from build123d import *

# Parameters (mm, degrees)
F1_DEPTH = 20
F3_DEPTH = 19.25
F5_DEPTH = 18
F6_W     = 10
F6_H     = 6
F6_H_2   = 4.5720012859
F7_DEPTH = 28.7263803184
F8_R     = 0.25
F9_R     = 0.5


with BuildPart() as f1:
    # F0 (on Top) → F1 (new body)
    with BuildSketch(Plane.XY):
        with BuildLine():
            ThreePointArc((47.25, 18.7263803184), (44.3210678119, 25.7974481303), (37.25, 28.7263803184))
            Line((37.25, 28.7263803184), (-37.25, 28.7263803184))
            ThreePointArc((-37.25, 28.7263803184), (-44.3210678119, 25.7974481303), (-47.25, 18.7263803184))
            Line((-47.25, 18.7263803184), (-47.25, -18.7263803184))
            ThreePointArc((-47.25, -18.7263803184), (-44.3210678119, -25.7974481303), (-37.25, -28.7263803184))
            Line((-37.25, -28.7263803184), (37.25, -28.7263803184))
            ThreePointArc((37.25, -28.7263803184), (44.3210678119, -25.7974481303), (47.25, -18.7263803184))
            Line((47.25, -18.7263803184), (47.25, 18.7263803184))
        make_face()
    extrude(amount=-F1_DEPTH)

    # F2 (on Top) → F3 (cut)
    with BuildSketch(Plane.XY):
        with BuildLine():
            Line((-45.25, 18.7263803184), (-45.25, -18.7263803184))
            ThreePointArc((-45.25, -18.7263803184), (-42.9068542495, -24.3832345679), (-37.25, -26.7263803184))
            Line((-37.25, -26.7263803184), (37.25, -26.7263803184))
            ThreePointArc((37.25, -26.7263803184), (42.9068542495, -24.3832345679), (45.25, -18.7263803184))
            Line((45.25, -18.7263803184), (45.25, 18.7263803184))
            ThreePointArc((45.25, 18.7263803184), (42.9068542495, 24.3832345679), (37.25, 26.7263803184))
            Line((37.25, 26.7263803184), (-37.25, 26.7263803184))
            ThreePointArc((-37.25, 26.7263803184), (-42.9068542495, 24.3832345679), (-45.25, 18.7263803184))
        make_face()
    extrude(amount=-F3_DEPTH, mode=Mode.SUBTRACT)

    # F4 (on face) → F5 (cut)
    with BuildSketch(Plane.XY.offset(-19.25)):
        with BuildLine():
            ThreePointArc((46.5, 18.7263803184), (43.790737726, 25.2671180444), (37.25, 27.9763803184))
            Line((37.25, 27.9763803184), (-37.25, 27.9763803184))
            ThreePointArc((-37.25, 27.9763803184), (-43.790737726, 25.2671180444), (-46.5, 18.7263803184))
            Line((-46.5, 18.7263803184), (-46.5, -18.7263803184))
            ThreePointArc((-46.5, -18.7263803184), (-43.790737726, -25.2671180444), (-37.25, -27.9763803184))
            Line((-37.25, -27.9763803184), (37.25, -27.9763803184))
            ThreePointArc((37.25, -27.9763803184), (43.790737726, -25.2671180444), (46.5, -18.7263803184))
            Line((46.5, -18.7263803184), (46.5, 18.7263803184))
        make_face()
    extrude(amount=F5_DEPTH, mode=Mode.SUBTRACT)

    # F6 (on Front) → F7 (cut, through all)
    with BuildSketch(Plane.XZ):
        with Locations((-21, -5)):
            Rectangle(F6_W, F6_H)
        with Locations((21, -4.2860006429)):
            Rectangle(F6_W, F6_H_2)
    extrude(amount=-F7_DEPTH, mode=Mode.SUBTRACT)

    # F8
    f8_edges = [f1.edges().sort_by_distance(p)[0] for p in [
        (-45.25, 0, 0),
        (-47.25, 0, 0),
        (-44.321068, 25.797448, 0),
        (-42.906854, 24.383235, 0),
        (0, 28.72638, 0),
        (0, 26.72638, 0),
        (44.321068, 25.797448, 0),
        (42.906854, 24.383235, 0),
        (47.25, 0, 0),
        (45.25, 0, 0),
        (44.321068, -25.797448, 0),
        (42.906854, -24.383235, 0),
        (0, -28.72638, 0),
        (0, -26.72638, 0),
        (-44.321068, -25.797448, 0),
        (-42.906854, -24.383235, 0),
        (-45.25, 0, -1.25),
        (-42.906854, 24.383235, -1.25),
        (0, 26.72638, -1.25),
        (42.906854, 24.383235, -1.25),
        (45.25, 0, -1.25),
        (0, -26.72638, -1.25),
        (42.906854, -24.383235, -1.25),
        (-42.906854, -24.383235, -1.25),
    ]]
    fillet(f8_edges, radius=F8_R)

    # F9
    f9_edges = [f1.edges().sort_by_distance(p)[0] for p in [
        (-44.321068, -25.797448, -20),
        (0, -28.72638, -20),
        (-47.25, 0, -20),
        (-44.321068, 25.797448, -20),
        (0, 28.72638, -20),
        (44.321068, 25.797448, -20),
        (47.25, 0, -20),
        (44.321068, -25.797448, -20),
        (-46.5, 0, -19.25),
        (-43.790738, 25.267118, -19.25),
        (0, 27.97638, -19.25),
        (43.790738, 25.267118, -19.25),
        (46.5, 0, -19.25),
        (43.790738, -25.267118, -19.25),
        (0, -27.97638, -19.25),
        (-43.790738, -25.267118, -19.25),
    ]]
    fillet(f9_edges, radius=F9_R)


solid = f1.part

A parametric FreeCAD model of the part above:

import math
import FreeCAD as App
import Part
import Sketcher


def edges_at(feature, points):
    """Names of the edges that pass closest to the given points."""
    edges = feature.Shape.Edges
    near = lambda p: min(range(len(edges)), key=lambda i: edges[i].distToShape(Part.Vertex(*p))[0])
    return sorted({f"Edge{near(p) + 1}" for p in points})

doc = App.newDocument("Part")
body = doc.addObject("PartDesign::Body", "Body")

# Sketch on XY plane
sketch1 = body.newObject("Sketcher::SketchObject", "Sketch")
sketch1.AttachmentSupport = (doc.getObject("XY_Plane"), [""])
sketch1.MapMode = "FlatFace"
sketch1.addGeometry([
    Part.ArcOfCircle(Part.Circle(App.Vector(37, 19, 0), App.Vector(0, 0, 1), 10), math.radians(0), math.radians(90)),  # 0
    Part.LineSegment(App.Vector(37, 29, 0), App.Vector(-37, 29, 0)),  # 1
    Part.ArcOfCircle(Part.Circle(App.Vector(-37, 19, 0), App.Vector(0, 0, 1), 10), math.radians(90), math.radians(180)),  # 2
    Part.LineSegment(App.Vector(-47, 19, 0), App.Vector(-47, -19, 0)),  # 3
    Part.ArcOfCircle(Part.Circle(App.Vector(-37, -19, 0), App.Vector(0, 0, 1), 10), math.radians(180), math.radians(270)),  # 4
    Part.LineSegment(App.Vector(-37, -29, 0), App.Vector(37, -29, 0)),  # 5
    Part.ArcOfCircle(Part.Circle(App.Vector(37, -19, 0), App.Vector(0, 0, 1), 10), math.radians(-90), math.radians(0)),  # 6
    Part.LineSegment(App.Vector(47, -19, 0), App.Vector(47, 19, 0)),  # 7
], False)
sketch1.addConstraint([
    Sketcher.Constraint("Tangent", 0, 2, 1, 1),
    Sketcher.Constraint("Tangent", 1, 2, 2, 1),
    Sketcher.Constraint("Tangent", 2, 2, 3, 1),
    Sketcher.Constraint("Tangent", 3, 2, 4, 1),
    Sketcher.Constraint("Tangent", 4, 2, 5, 1),
    Sketcher.Constraint("Tangent", 5, 2, 6, 1),
    Sketcher.Constraint("Tangent", 6, 2, 7, 1),
    Sketcher.Constraint("Tangent", 7, 2, 0, 1),
    Sketcher.Constraint("Horizontal", 1),
    Sketcher.Constraint("Vertical", 3),
    Sketcher.Constraint("Horizontal", 5),
    Sketcher.Constraint("Vertical", 7),
    Sketcher.Constraint("Equal", 0, 2),
    Sketcher.Constraint("Equal", 2, 4),
    Sketcher.Constraint("Equal", 4, 6),
    Sketcher.Constraint("Symmetric", 0, 3, 4, 3, -1, 1),
    Sketcher.Constraint("Radius", 0, 10.0),
    Sketcher.Constraint("DistanceX", 1, 2, 1, 1, 74.5),
    Sketcher.Constraint("DistanceY", 3, 2, 3, 1, 37.452761),
])
pad1 = body.newObject("PartDesign::Pad", "Pad")
pad1.Profile = sketch1
pad1.Length = 20
pad1.Reversed = True

# Sketch on XY plane
sketch2 = body.newObject("Sketcher::SketchObject", "Sketch001")
sketch2.AttachmentSupport = (doc.getObject("XY_Plane"), [""])
sketch2.MapMode = "FlatFace"
sketch2.addGeometry([
    Part.LineSegment(App.Vector(-45, 19, 0), App.Vector(-45, -19, 0)),  # 0
    Part.ArcOfCircle(Part.Circle(App.Vector(-37, -19, 0), App.Vector(0, 0, 1), 8), math.radians(180), math.radians(270)),  # 1
    Part.LineSegment(App.Vector(-37, -27, 0), App.Vector(37, -27, 0)),  # 2
    Part.ArcOfCircle(Part.Circle(App.Vector(37, -19, 0), App.Vector(0, 0, 1), 8), math.radians(-90), math.radians(0)),  # 3
    Part.LineSegment(App.Vector(45, -19, 0), App.Vector(45, 19, 0)),  # 4
    Part.ArcOfCircle(Part.Circle(App.Vector(37, 19, 0), App.Vector(0, 0, 1), 8), math.radians(0), math.radians(90)),  # 5
    Part.LineSegment(App.Vector(37, 27, 0), App.Vector(-37, 27, 0)),  # 6
    Part.ArcOfCircle(Part.Circle(App.Vector(-37, 19, 0), App.Vector(0, 0, 1), 8), math.radians(90), math.radians(180)),  # 7
], False)
sketch2.addConstraint([
    Sketcher.Constraint("Tangent", 0, 2, 1, 1),
    Sketcher.Constraint("Tangent", 1, 2, 2, 1),
    Sketcher.Constraint("Tangent", 2, 2, 3, 1),
    Sketcher.Constraint("Tangent", 3, 2, 4, 1),
    Sketcher.Constraint("Tangent", 4, 2, 5, 1),
    Sketcher.Constraint("Tangent", 5, 2, 6, 1),
    Sketcher.Constraint("Tangent", 6, 2, 7, 1),
    Sketcher.Constraint("Tangent", 7, 2, 0, 1),
    Sketcher.Constraint("Vertical", 0),
    Sketcher.Constraint("Horizontal", 2),
    Sketcher.Constraint("Vertical", 4),
    Sketcher.Constraint("Horizontal", 6),
    Sketcher.Constraint("Equal", 1, 3),
    Sketcher.Constraint("Equal", 3, 5),
    Sketcher.Constraint("Equal", 5, 7),
    Sketcher.Constraint("Symmetric", 1, 3, 5, 3, -1, 1),
    Sketcher.Constraint("Radius", 1, 8.0),
    Sketcher.Constraint("DistanceX", 2, 1, 2, 2, 74.5),
    Sketcher.Constraint("DistanceY", 0, 2, 0, 1, 37.452761),
])
pocket1 = body.newObject("PartDesign::Pocket", "Pocket")
pocket1.Profile = sketch2
pocket1.Length = 19.25

# Sketch on XY plane
sketch3 = body.newObject("Sketcher::SketchObject", "Sketch002")
sketch3.AttachmentSupport = (doc.getObject("XY_Plane"), [""])
sketch3.MapMode = "FlatFace"
sketch3.AttachmentOffset = App.Placement(App.Vector(0, 0, -19.25), App.Rotation())
sketch3.addGeometry([
    Part.ArcOfCircle(Part.Circle(App.Vector(37, 19, 0), App.Vector(0, 0, 1), 9), math.radians(0), math.radians(90)),  # 0
    Part.LineSegment(App.Vector(37, 28, 0), App.Vector(-37, 28, 0)),  # 1
    Part.ArcOfCircle(Part.Circle(App.Vector(-37, 19, 0), App.Vector(0, 0, 1), 9), math.radians(90), math.radians(180)),  # 2
    Part.LineSegment(App.Vector(-46, 19, 0), App.Vector(-46, -19, 0)),  # 3
    Part.ArcOfCircle(Part.Circle(App.Vector(-37, -19, 0), App.Vector(0, 0, 1), 9), math.radians(180), math.radians(270)),  # 4
    Part.LineSegment(App.Vector(-37, -28, 0), App.Vector(37, -28, 0)),  # 5
    Part.ArcOfCircle(Part.Circle(App.Vector(37, -19, 0), App.Vector(0, 0, 1), 9), math.radians(-90), math.radians(0)),  # 6
    Part.LineSegment(App.Vector(46, -19, 0), App.Vector(46, 19, 0)),  # 7
], False)
sketch3.addConstraint([
    Sketcher.Constraint("Tangent", 0, 2, 1, 1),
    Sketcher.Constraint("Tangent", 1, 2, 2, 1),
    Sketcher.Constraint("Tangent", 2, 2, 3, 1),
    Sketcher.Constraint("Tangent", 3, 2, 4, 1),
    Sketcher.Constraint("Tangent", 4, 2, 5, 1),
    Sketcher.Constraint("Tangent", 5, 2, 6, 1),
    Sketcher.Constraint("Tangent", 6, 2, 7, 1),
    Sketcher.Constraint("Tangent", 7, 2, 0, 1),
    Sketcher.Constraint("Horizontal", 1),
    Sketcher.Constraint("Vertical", 3),
    Sketcher.Constraint("Horizontal", 5),
    Sketcher.Constraint("Vertical", 7),
    Sketcher.Constraint("Equal", 0, 2),
    Sketcher.Constraint("Equal", 2, 4),
    Sketcher.Constraint("Equal", 4, 6),
    Sketcher.Constraint("Symmetric", 0, 3, 4, 3, -1, 1),
    Sketcher.Constraint("Radius", 0, 9.25),
    Sketcher.Constraint("DistanceX", 1, 2, 1, 1, 74.5),
    Sketcher.Constraint("DistanceY", 3, 2, 3, 1, 37.452761),
])
pocket2 = body.newObject("PartDesign::Pocket", "Pocket001")
pocket2.Profile = sketch3
pocket2.Length = 18
pocket2.Reversed = True

# Sketch on XZ plane
sketch4 = body.newObject("Sketcher::SketchObject", "Sketch003")
sketch4.AttachmentSupport = (doc.getObject("XZ_Plane"), [""])
sketch4.MapMode = "FlatFace"
sketch4.addGeometry([
    Part.LineSegment(App.Vector(-26, -2, 0), App.Vector(-26, -8, 0)),  # 0
    Part.LineSegment(App.Vector(-26, -8, 0), App.Vector(-16, -8, 0)),  # 1
    Part.LineSegment(App.Vector(-16, -8, 0), App.Vector(-16, -2, 0)),  # 2
    Part.LineSegment(App.Vector(-16, -2, 0), App.Vector(-26, -2, 0)),  # 3
    Part.LineSegment(App.Vector(16, -2, 0), App.Vector(16, -6.6, 0)),  # 4
    Part.LineSegment(App.Vector(16, -6.6, 0), App.Vector(26, -6.6, 0)),  # 5
    Part.LineSegment(App.Vector(26, -6.6, 0), App.Vector(26, -2, 0)),  # 6
    Part.LineSegment(App.Vector(26, -2, 0), App.Vector(16, -2, 0)),  # 7
], False)
sketch4.addConstraint([
    Sketcher.Constraint("Coincident", 0, 2, 1, 1),
    Sketcher.Constraint("Coincident", 1, 2, 2, 1),
    Sketcher.Constraint("Coincident", 2, 2, 3, 1),
    Sketcher.Constraint("Coincident", 3, 2, 0, 1),
    Sketcher.Constraint("Coincident", 4, 2, 5, 1),
    Sketcher.Constraint("Coincident", 5, 2, 6, 1),
    Sketcher.Constraint("Coincident", 6, 2, 7, 1),
    Sketcher.Constraint("Coincident", 7, 2, 4, 1),
    Sketcher.Constraint("Vertical", 0),
    Sketcher.Constraint("Horizontal", 1),
    Sketcher.Constraint("Vertical", 2),
    Sketcher.Constraint("Horizontal", 3),
    Sketcher.Constraint("Vertical", 4),
    Sketcher.Constraint("Horizontal", 5),
    Sketcher.Constraint("Vertical", 6),
    Sketcher.Constraint("Horizontal", 7),
    Sketcher.Constraint("Symmetric", 3, 2, 6, 2, -2),
    Sketcher.Constraint("Equal", 3, 5),
    Sketcher.Constraint("DistanceX", 1, 1, 1, 2, 10.0),
    Sketcher.Constraint("DistanceY", 0, 2, 0, 1, 6.0),
    Sketcher.Constraint("DistanceX", 0, 2, -1, 1, 26.0),
    Sketcher.Constraint("DistanceY", 0, 2, -1, 1, 8.0),
    Sketcher.Constraint("DistanceY", 4, 2, 4, 1, 4.572001),
])
pocket3 = body.newObject("PartDesign::Pocket", "Pocket002")
pocket3.Profile = sketch4
pocket3.Type = "ThroughAll"
doc.recompute()

fillet = body.newObject("PartDesign::Fillet", "Fillet")
fillet.Base = (pocket3, edges_at(pocket3, [
    (-45.25, 0, 0),
    (-47.25, 0, 0),
    (-44.321, 25.797, 0),
    (-42.907, 24.383, 0),
    (0, 28.726, 0),
    (0, 26.726, 0),
    (44.321, 25.797, 0),
    (42.907, 24.383, 0),
    (47.25, 0, 0),
    (45.25, 0, 0),
    (44.321, -25.797, 0),
    (42.907, -24.383, 0),
    (0, -28.726, 0),
    (0, -26.726, 0),
    (-44.321, -25.797, 0),
    (-42.907, -24.383, 0),
    (-45.25, 0, -1.25),
    (-42.907, 24.383, -1.25),
    (0, 26.726, -1.25),
    (42.907, 24.383, -1.25),
    (45.25, 0, -1.25),
    (0, -26.726, -1.25),
    (42.907, -24.383, -1.25),
    (-42.907, -24.383, -1.25),
]))
fillet.Radius = 0.25
doc.recompute()

fillet2 = body.newObject("PartDesign::Fillet", "Fillet001")
fillet2.Base = (fillet, edges_at(fillet, [
    (-44.321, -25.797, -20),
    (0, -28.726, -20),
    (-47.25, 0, -20),
    (-44.321, 25.797, -20),
    (0, 28.726, -20),
    (44.321, 25.797, -20),
    (47.25, 0, -20),
    (44.321, -25.797, -20),
    (-46.5, 0, -19.25),
    (-43.791, 25.267, -19.25),
    (0, 27.976, -19.25),
    (43.791, 25.267, -19.25),
    (46.5, 0, -19.25),
    (43.791, -25.267, -19.25),
    (0, -27.976, -19.25),
    (-43.791, -25.267, -19.25),
]))
fillet2.Radius = 0.5

doc.recompute()
